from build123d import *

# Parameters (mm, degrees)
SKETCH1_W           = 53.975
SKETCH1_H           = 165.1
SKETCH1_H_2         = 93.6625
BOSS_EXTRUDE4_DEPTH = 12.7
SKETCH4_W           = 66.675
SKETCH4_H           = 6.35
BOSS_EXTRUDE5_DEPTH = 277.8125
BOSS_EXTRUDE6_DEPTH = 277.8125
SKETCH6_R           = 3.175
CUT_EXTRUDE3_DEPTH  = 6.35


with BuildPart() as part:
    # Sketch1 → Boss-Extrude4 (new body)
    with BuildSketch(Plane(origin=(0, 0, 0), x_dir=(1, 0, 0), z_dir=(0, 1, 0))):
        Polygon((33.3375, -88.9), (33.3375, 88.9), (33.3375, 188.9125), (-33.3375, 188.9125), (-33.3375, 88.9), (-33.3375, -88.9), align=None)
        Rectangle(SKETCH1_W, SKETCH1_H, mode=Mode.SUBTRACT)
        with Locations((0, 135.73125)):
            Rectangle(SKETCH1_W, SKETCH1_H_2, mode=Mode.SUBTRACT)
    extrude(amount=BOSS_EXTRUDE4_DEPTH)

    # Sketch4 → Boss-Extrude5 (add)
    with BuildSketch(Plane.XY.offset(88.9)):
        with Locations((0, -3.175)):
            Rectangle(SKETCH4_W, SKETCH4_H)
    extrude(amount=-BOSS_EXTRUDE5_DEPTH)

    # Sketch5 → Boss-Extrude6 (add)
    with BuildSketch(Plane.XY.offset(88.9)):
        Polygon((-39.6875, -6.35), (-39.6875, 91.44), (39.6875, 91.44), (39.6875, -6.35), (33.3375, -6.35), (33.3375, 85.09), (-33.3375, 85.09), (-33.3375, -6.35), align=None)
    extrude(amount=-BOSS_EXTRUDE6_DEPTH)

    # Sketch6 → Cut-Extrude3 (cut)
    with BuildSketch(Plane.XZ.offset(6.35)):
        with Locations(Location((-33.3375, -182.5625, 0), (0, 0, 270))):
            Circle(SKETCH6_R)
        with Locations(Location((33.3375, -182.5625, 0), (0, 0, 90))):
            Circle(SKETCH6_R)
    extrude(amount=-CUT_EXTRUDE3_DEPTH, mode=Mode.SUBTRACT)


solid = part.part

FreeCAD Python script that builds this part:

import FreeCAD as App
import Part
import Sketcher
from FreeCAD import Vector
Q = App.Units.Quantity


def add_polygon(sketch, points):
    """Adds a closed chain of lines whose ends are joined by coincident constraints."""
    first, n = sketch.GeometryCount, len(points)
    for a, b in zip(points, points[1:] + points[:1]):
        sketch.addGeometry(Part.LineSegment(App.Vector(*a, 0), App.Vector(*b, 0)), False)
    for i in range(n):
        sketch.addConstraint(Sketcher.Constraint("Coincident", first + i, 2, first + (i + 1) % n, 1))

doc = App.newDocument("Part")
body = doc.addObject("PartDesign::Body", "Body")

sketch1 = body.newObject("Sketcher::SketchObject", "Sketch")
sketch1.AttachmentSupport = (doc.getObject("XZ_Plane"), [""])
sketch1.MapMode = "FlatFace"
add_polygon(sketch1, [(33, 89), (33, -189), (-33, -189), (-33, 89)])
add_polygon(sketch1, [(27, 83), (-27, 83), (-27, -83), (27, -83)])
add_polygon(sketch1, [(27, -89), (-27, -89), (-27, -183), (27, -183)])
sketch1.addConstraint(Sketcher.Constraint("Vertical", 0))
sketch1.addConstraint(Sketcher.Constraint("Horizontal", 1))
sketch1.addConstraint(Sketcher.Constraint("Vertical", 2))
sketch1.addConstraint(Sketcher.Constraint("Horizontal", 3))
sketch1.addConstraint(Sketcher.Constraint("Horizontal", 4))
sketch1.addConstraint(Sketcher.Constraint("Vertical", 5))
sketch1.addConstraint(Sketcher.Constraint("Horizontal", 6))
sketch1.addConstraint(Sketcher.Constraint("Vertical", 7))
sketch1.addConstraint(Sketcher.Constraint("Horizontal", 8))
sketch1.addConstraint(Sketcher.Constraint("Vertical", 9))
sketch1.addConstraint(Sketcher.Constraint("Horizontal", 10))
sketch1.addConstraint(Sketcher.Constraint("Vertical", 11))
sketch1.addConstraint(Sketcher.Constraint("Symmetric", 4, 2, 6, 2, -1, 1))
sketch1.addConstraint(Sketcher.Constraint("Vertical", 5, 2, 8, 2))
sketch1.addConstraint(Sketcher.Constraint("Vertical", 7, 2, 10, 2))
sketch1.addConstraint(Sketcher.Constraint("DistanceY", 5, 2, 5, 1, Q("6.5 in")))
sketch1.addConstraint(Sketcher.Constraint("DistanceY", -1, 1, 2, 2, Q("3.5 in")))
sketch1.addConstraint(Sketcher.Constraint("DistanceY", 8, 2, -1, 1, Q("3.5 in")))
sketch1.addConstraint(Sketcher.Constraint("DistanceX", 1, 2, 1, 1, Q("2.625 in")))
sketch1.addConstraint(Sketcher.Constraint("DistanceX", 4, 2, 4, 1, Q("2.125 in")))
sketch1.addConstraint(Sketcher.Constraint("DistanceY", 0, 2, 0, 1, Q("10.9375 in")))
sketch1.addConstraint(Sketcher.Constraint("DistanceY", 9, 2, 9, 1, Q("3.6875 in")))
sketch1.addConstraint(Sketcher.Constraint("DistanceX", 2, 2, 4, 2, Q("0.25 in")))
pad1 = body.newObject("PartDesign::Pad", "Pad")
pad1.Profile = sketch1
pad1.Length = Q("0.5 in")
pad1.Reversed = True

sketch2 = body.newObject("Sketcher::SketchObject", "Sketch001")
sketch2.AttachmentSupport = (doc.getObject("XY_Plane"), [""])
sketch2.MapMode = "FlatFace"
sketch2.AttachmentOffset = App.Placement(Vector(0, 0, 3.5 * 25.4), App.Rotation())
add_polygon(sketch2, [(-33, 0), (-33, -6), (33, -6), (33, 0)])
sketch2.addConstraint(Sketcher.Constraint("Vertical", 0))
sketch2.addConstraint(Sketcher.Constraint("Horizontal", 1))
sketch2.addConstraint(Sketcher.Constraint("Vertical", 2))
sketch2.addConstraint(Sketcher.Constraint("Horizontal", 3))
sketch2.addConstraint(Sketcher.Constraint("Symmetric", 2, 2, 3, 2, -1, 1))
sketch2.addConstraint(Sketcher.Constraint("DistanceY", 0, 2, 0, 1, Q("0.25 in")))
sketch2.addConstraint(Sketcher.Constraint("DistanceX", 1, 1, 1, 2, Q("2.625 in")))
pad2 = body.newObject("PartDesign::Pad", "Pad001")
pad2.Profile = sketch2
pad2.Length = Q("10.9375 in")
pad2.Reversed = True

sketch3 = body.newObject("Sketcher::SketchObject", "Sketch002")
sketch3.AttachmentSupport = (doc.getObject("XY_Plane"), [""])
sketch3.MapMode = "FlatFace"
sketch3.AttachmentOffset = App.Placement(Vector(0, 0, 3.5 * 25.4), App.Rotation())
add_polygon(sketch3, [(-40, 91), (-40, -6), (-33, -6), (-33, 85), (33, 85), (33, -6), (40, -6), (40, 91)])
sketch3.addConstraint(Sketcher.Constraint("Vertical", 0))
sketch3.addConstraint(Sketcher.Constraint("Horizontal", 1))
sketch3.addConstraint(Sketcher.Constraint("Vertical", 2))
sketch3.addConstraint(Sketcher.Constraint("Horizontal", 3))
sketch3.addConstraint(Sketcher.Constraint("Vertical", 4))
sketch3.addConstraint(Sketcher.Constraint("Horizontal", 5))
sketch3.addConstraint(Sketcher.Constraint("Vertical", 6))
sketch3.addConstraint(Sketcher.Constraint("Horizontal", 7))
sketch3.addConstraint(Sketcher.Constraint("Symmetric", 1, 2, 4, 2, -2))
sketch3.addConstraint(Sketcher.Constraint("Equal", 1, 5))
sketch3.addConstraint(Sketcher.Constraint("DistanceY", 2, 1, 2, 2, Q("3.6 in")))
sketch3.addConstraint(Sketcher.Constraint("DistanceX", 1, 1, 1, 2, Q("0.25 in")))
sketch3.addConstraint(Sketcher.Constraint("DistanceY", 0, 2, 0, 1, Q("3.85 in")))
sketch3.addConstraint(Sketcher.Constraint("DistanceY", -1, 1, 6, 2, Q("3.6 in")))
sketch3.addConstraint(Sketcher.Constraint("DistanceX", 3, 1, 3, 2, Q("2.625 in")))
pad3 = body.newObject("PartDesign::Pad", "Pad002")
pad3.Profile = sketch3
pad3.Length = Q("10.9375 in")
pad3.Reversed = True

sketch4 = body.newObject("Sketcher::SketchObject", "Sketch003")
sketch4.AttachmentSupport = (doc.getObject("XZ_Plane"), [""])
sketch4.MapMode = "FlatFace"
sketch4.AttachmentOffset = App.Placement(Vector(0, 0, 0.25 * 25.4), App.Rotation())
sketch4.addGeometry(Part.Circle(Vector(-33.3, -182.6, 0), Vector(0, 0, 1), 3.2), False)
sketch4.addGeometry(Part.Circle(Vector(33.3, -182.6, 0), Vector(0, 0, 1), 3.2), False)
sketch4.addConstraint(Sketcher.Constraint("Equal", 0, 1))
sketch4.addConstraint(Sketcher.Constraint("Symmetric", 0, 3, 1, 3, -2))
sketch4.addConstraint(Sketcher.Constraint("Diameter", 0, Q("0.25 in")))
sketch4.addConstraint(Sketcher.Constraint("DistanceX", 0, 3, -1, 1, Q("1.3125 in")))
sketch4.addConstraint(Sketcher.Constraint("DistanceY", 0, 3, -1, 1, Q("7.1875 in")))
pocket1 = body.newObject("PartDesign::Pocket", "Pocket")
pocket1.Profile = sketch4
pocket1.Length = Q("0.25 in")

doc.recompute()
